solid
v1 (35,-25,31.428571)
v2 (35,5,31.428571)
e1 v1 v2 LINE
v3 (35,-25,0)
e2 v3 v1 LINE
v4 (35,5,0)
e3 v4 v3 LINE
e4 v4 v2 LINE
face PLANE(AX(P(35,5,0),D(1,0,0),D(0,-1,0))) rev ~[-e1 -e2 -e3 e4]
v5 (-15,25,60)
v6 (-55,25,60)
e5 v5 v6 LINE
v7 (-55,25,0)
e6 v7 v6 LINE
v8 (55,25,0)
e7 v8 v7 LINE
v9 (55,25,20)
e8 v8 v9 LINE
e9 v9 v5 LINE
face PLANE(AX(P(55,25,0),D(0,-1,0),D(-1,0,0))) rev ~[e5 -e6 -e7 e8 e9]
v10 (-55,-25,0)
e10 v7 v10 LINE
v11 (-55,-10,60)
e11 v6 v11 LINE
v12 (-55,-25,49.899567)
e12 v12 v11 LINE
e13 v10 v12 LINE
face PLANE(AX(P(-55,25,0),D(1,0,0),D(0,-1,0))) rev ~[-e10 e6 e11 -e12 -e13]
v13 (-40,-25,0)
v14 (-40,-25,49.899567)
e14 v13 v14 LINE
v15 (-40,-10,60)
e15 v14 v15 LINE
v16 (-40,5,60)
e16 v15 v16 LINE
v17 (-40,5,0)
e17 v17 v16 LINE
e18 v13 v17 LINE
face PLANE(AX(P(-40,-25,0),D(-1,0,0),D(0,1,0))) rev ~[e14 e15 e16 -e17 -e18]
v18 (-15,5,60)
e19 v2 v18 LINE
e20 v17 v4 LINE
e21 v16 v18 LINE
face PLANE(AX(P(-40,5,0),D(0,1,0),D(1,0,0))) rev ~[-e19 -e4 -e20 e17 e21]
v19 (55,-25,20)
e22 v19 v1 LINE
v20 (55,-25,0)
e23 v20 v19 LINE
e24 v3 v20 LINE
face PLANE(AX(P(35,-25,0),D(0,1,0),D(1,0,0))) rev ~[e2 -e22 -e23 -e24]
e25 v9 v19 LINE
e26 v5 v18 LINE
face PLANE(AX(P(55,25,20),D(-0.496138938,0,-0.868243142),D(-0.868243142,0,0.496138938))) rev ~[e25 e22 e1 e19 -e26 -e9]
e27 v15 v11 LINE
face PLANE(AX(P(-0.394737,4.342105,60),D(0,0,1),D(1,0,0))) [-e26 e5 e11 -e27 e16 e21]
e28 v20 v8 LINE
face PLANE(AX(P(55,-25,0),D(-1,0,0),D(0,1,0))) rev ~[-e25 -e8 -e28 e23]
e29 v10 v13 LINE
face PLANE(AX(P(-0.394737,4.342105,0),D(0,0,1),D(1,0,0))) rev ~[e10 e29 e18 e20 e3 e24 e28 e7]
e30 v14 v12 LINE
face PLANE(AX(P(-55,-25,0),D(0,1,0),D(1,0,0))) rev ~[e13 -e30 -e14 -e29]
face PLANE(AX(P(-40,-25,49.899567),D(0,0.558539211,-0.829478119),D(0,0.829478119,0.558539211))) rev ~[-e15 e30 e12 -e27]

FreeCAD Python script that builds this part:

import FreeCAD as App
import Part
import Sketcher
Q = App.Units.Quantity


def add_polygon(sketch, points):
    """Adds a closed chain of lines whose ends are joined by coincident constraints."""
    first, n = sketch.GeometryCount, len(points)
    for a, b in zip(points, points[1:] + points[:1]):
        sketch.addGeometry(Part.LineSegment(App.Vector(*a, 0), App.Vector(*b, 0)), False)
    for i in range(n):
        sketch.addConstraint(Sketcher.Constraint("Coincident", first + i, 2, first + (i + 1) % n, 1))

doc = App.newDocument("Part")
body = doc.addObject("PartDesign::Body", "Body")

# Sketch on XY plane
sketch1 = body.newObject("Sketcher::SketchObject", "Sketch")
sketch1.AttachmentSupport = (doc.getObject("XY_Plane"), [""])
sketch1.MapMode = "FlatFace"
add_polygon(sketch1, [(55, 25), (-55, 25), (-55, -25), (-40, -25), (-40, 5), (35, 5), (35, -25), (55, -25)])  # lines 0-7
sketch1.addConstraint([
    Sketcher.Constraint("Horizontal", 0),
    Sketcher.Constraint("Vertical", 1),
    Sketcher.Constraint("Horizontal", 2),
    Sketcher.Constraint("Vertical", 3),
    Sketcher.Constraint("Horizontal", 4),
    Sketcher.Constraint("Vertical", 5),
    Sketcher.Constraint("Horizontal", 6),
    Sketcher.Constraint("Vertical", 7),
    Sketcher.Constraint("Symmetric", 0, 2, 6, 2, -1, 1),
    Sketcher.Constraint("Horizontal", 2, 2, 5, 2),
    Sketcher.Constraint("DistanceX", 0, 2, 0, 1, Q("110 mm")),
    Sketcher.Constraint("DistanceX", 2, 1, 2, 2, Q("15 mm")),
    Sketcher.Constraint("DistanceX", 4, 1, 4, 2, Q("75 mm")),
    Sketcher.Constraint("DistanceY", 1, 2, 1, 1, Q("50 mm")),
    Sketcher.Constraint("DistanceY", 3, 1, 3, 2, Q("30 mm")),
])
pad1 = body.newObject("PartDesign::Pad", "Pad")
pad1.Profile = sketch1
pad1.Length = 60

# Sketch on YZ plane
sketch2 = body.newObject("Sketcher::SketchObject", "Sketch001")
sketch2.AttachmentSupport = (doc.getObject("YZ_Plane"), [""])
sketch2.MapMode = "FlatFace"
sketch2.AttachmentOffset = App.Placement(App.Vector(0, 0, -40), App.Rotation())
add_polygon(sketch2, [(-10, 60), (-25, 60), (-25, 50)])  # lines 0-2
sketch2.addConstraint([
    Sketcher.Constraint("Horizontal", 0),
    Sketcher.Constraint("Vertical", 1),
    Sketcher.Constraint("DistanceX", 0, 2, 0, 1, Q("15 mm")),
    Sketcher.Constraint("DistanceX", 0, 2, -1, 1, Q("25 mm")),
    Sketcher.Constraint("DistanceY", -1, 1, 0, 2, Q("60 mm")),
    Sketcher.Constraint("Distance", 2, Q("18.08366 mm")),
])
pocket1 = body.newObject("PartDesign::Pocket", "Pocket")
pocket1.Profile = sketch2
pocket1.Length = 15

# Sketch on XZ plane
sketch3 = body.newObject("Sketcher::SketchObject", "Sketch002")
sketch3.AttachmentSupport = (doc.getObject("XZ_Plane"), [""])
sketch3.MapMode = "FlatFace"
sketch3.AttachmentOffset = App.Placement(App.Vector(0, 0, -25), App.Rotation())
add_polygon(sketch3, [(55, 20), (-15, 60), (55, 60)])  # lines 0-2
sketch3.addConstraint([
    Sketcher.Constraint("Horizontal", 1),
    Sketcher.Constraint("Vertical", 2),
    Sketcher.Constraint("DistanceX", 1, 1, 1, 2, Q("70 mm")),
    Sketcher.Constraint("DistanceY", 2, 2, 2, 1, Q("40 mm")),
    Sketcher.Constraint("DistanceX", 0, 2, -1, 1, Q("15 mm")),
    Sketcher.Constraint("DistanceY", -1, 1, 0, 2, Q("60 mm")),
])
pocket2 = body.newObject("PartDesign::Pocket", "Pocket001")
pocket2.Profile = sketch3
pocket2.Length = 50
pocket2.Reversed = True

doc.recompute()
